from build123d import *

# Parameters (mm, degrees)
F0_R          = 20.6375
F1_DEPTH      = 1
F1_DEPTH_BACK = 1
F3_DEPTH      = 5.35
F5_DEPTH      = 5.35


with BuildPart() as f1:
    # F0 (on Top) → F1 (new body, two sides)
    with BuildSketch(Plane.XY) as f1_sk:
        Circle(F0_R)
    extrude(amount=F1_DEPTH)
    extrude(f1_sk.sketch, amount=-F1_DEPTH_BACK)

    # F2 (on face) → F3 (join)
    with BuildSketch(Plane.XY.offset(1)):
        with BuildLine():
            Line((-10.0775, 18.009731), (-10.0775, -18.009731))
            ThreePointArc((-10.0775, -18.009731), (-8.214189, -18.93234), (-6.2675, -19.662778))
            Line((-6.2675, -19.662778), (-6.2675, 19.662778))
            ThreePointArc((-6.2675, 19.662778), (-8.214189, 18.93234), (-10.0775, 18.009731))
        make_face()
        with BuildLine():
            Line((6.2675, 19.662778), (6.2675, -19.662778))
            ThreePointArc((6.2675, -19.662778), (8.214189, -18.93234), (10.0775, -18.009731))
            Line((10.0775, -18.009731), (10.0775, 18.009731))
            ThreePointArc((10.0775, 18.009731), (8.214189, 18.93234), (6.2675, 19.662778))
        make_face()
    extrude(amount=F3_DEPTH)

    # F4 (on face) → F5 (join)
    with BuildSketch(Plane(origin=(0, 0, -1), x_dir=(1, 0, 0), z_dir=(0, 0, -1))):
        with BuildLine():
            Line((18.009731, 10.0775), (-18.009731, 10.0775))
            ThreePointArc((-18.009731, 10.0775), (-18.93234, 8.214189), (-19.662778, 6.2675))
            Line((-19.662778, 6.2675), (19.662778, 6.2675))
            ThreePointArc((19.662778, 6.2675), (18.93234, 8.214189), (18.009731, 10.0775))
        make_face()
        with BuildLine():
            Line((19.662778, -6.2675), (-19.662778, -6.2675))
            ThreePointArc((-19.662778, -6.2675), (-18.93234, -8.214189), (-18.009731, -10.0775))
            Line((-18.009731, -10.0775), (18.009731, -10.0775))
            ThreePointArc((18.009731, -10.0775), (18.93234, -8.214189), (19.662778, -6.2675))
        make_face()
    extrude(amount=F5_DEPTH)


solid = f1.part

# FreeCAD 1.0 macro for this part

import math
import FreeCAD as App
import Part
import Sketcher

V = App.Vector
Q = App.Units.Quantity

doc = App.newDocument("Part")
body = doc.addObject("PartDesign::Body", "Body")

# Sketch on XY plane
sketch1 = body.newObject("Sketcher::SketchObject", "Sketch")
sketch1.AttachmentSupport = (doc.getObject("XY_Plane"), [""])
sketch1.MapMode = "FlatFace"
sketch1.addGeometry(Part.Circle(V(0, 0, 0), V(0, 0, 1), 20.6375), False)
sketch1.addConstraint([
    Sketcher.Constraint("Coincident", 0, 3, -1, 1),
    Sketcher.Constraint("Diameter", 0, Q("41.275 mm")),
])
pad1 = body.newObject("PartDesign::Pad", "Pad")
pad1.Profile = sketch1
pad1.Type = "TwoLengths"
pad1.Length = 1
pad1.Length2 = 1

# Sketch on XY plane
sketch2 = body.newObject("Sketcher::SketchObject", "Sketch001")
sketch2.AttachmentSupport = (doc.getObject("XY_Plane"), [""])
sketch2.MapMode = "FlatFace"
sketch2.AttachmentOffset = App.Placement(V(0, 0, 1), App.Rotation())
sketch2.addGeometry([
    Part.LineSegment(V(-10.0775, 18.009731, 0), V(-10.0775, -18.009731, 0)),  # 0
    Part.ArcOfCircle(Part.Circle(V(0.000011, 0.000032, 0), V(0, 0, 1), 20.637534), math.radians(-119.229554), math.radians(-107.679655)),  # 1
    Part.LineSegment(V(-6.2675, -19.662778, 0), V(-6.2675, 19.662778, 0)),  # 2
    Part.ArcOfCircle(Part.Circle(V(0.000011, -0.000032, 0), V(0, 0, 1), 20.637534), math.radians(107.679655), math.radians(119.229554)),  # 3
    Part.LineSegment(V(6.2675, 19.662778, 0), V(6.2675, -19.662778, 0)),  # 4
    Part.ArcOfCircle(Part.Circle(V(-0.000011, 0.000032, 0), V(0, 0, 1), 20.637534), math.radians(-72.320345), math.radians(-60.770446)),  # 5
    Part.LineSegment(V(10.0775, -18.009731, 0), V(10.0775, 18.009731, 0)),  # 6
    Part.ArcOfCircle(Part.Circle(V(-0.000011, -0.000032, 0), V(0, 0, 1), 20.637534), math.radians(60.770446), math.radians(72.320345)),  # 7
], False)
sketch2.addConstraint([
    Sketcher.Constraint("Coincident", 0, 2, 1, 1),
    Sketcher.Constraint("Coincident", 1, 2, 2, 1),
    Sketcher.Constraint("Coincident", 2, 2, 3, 1),
    Sketcher.Constraint("Coincident", 3, 2, 0, 1),
    Sketcher.Constraint("Coincident", 4, 2, 5, 1),
    Sketcher.Constraint("Coincident", 5, 2, 6, 1),
    Sketcher.Constraint("Coincident", 6, 2, 7, 1),
    Sketcher.Constraint("Coincident", 7, 2, 4, 1),
    Sketcher.Constraint("Vertical", 0),
    Sketcher.Constraint("Vertical", 2),
    Sketcher.Constraint("Vertical", 4),
    Sketcher.Constraint("Vertical", 6),
    Sketcher.Constraint("Equal", 1, 3),
    Sketcher.Constraint("Equal", 3, 5),
    Sketcher.Constraint("Equal", 5, 7),
    Sketcher.Constraint("Symmetric", 3, 3, 5, 3, -1, 1),
    Sketcher.Constraint("Symmetric", 1, 3, 7, 3, -1, 1),
    Sketcher.Constraint("Symmetric", 1, 3, 5, 3, -2),
    Sketcher.Constraint("Horizontal", 1, 2, 4, 2),
    Sketcher.Constraint("Horizontal", 0, 2, 5, 2),
    Sketcher.Constraint("DistanceX", 0, 2, 1, 2, Q("3.81 mm")),
    Sketcher.Constraint("Radius", 1, Q("20.637534 mm")),
    Sketcher.Constraint("DistanceX", 1, 2, 4, 2, Q("12.535 mm")),
    Sketcher.Constraint("DistanceY", 0, 2, 0, 1, Q("36.019462 mm")),
    Sketcher.Constraint("DistanceY", 0, 2, 7, 3, Q("18.009699 mm")),
])
pad2 = body.newObject("PartDesign::Pad", "Pad001")
pad2.Profile = sketch2
pad2.Length = 5.35

# Sketch on XY plane
sketch3 = body.newObject("Sketcher::SketchObject", "Sketch002")
sketch3.AttachmentSupport = (doc.getObject("XY_Plane"), [""])
sketch3.MapMode = "FlatFace"
sketch3.AttachmentOffset = App.Placement(V(0, 0, -1), App.Rotation())
sketch3.addGeometry([
    Part.LineSegment(V(18.009731, -10.0775, 0), V(-18.009731, -10.0775, 0)),  # 0
    Part.ArcOfCircle(Part.Circle(V(0.000032, 0.000011, 0), V(0, 0, 1), 20.637534), math.radians(-162.320345), math.radians(-150.770446)),  # 1
    Part.LineSegment(V(-19.662778, -6.2675, 0), V(19.662778, -6.2675, 0)),  # 2
    Part.ArcOfCircle(Part.Circle(V(-0.000032, 0.000011, 0), V(0, 0, 1), 20.637534), math.radians(-29.229554), math.radians(-17.679655)),  # 3
    Part.LineSegment(V(19.662778, 6.2675, 0), V(-19.662778, 6.2675, 0)),  # 4
    Part.ArcOfCircle(Part.Circle(V(0.000032, -0.000011, 0), V(0, 0, 1), 20.637534), math.radians(150.770446), math.radians(162.320345)),  # 5
    Part.LineSegment(V(-18.009731, 10.0775, 0), V(18.009731, 10.0775, 0)),  # 6
    Part.ArcOfCircle(Part.Circle(V(-0.000032, -0.000011, 0), V(0, 0, 1), 20.637534), math.radians(17.679655), math.radians(29.229554)),  # 7
], False)
sketch3.addConstraint([
    Sketcher.Constraint("Coincident", 0, 2, 1, 2),
    Sketcher.Constraint("Coincident", 1, 1, 2, 1),
    Sketcher.Constraint("Coincident", 2, 2, 3, 2),
    Sketcher.Constraint("Coincident", 3, 1, 0, 1),
    Sketcher.Constraint("Coincident", 4, 2, 5, 2),
    Sketcher.Constraint("Coincident", 5, 1, 6, 1),
    Sketcher.Constraint("Coincident", 6, 2, 7, 2),
    Sketcher.Constraint("Coincident", 7, 1, 4, 1),
    Sketcher.Constraint("Horizontal", 0),
    Sketcher.Constraint("Horizontal", 2),
    Sketcher.Constraint("Horizontal", 4),
    Sketcher.Constraint("Horizontal", 6),
    Sketcher.Constraint("Equal", 1, 3),
    Sketcher.Constraint("Equal", 3, 5),
    Sketcher.Constraint("Equal", 5, 7),
    Sketcher.Constraint("Symmetric", 3, 3, 5, 3, -1, 1),
    Sketcher.Constraint("Symmetric", 1, 3, 7, 3, -1, 1),
    Sketcher.Constraint("Symmetric", 1, 3, 3, 3, -2),
    Sketcher.Constraint("Vertical", 1, 1, 4, 2),
    Sketcher.Constraint("Vertical", 0, 2, 5, 1),
    Sketcher.Constraint("DistanceY", 0, 2, 1, 1, Q("3.81 mm")),
    Sketcher.Constraint("Radius", 1, Q("20.637534 mm")),
    Sketcher.Constraint("DistanceY", 1, 1, 4, 2, Q("12.535 mm")),
    Sketcher.Constraint("DistanceX", 0, 2, 0, 1, Q("36.019462 mm")),
    Sketcher.Constraint("DistanceX", 0, 2, 7, 3, Q("18.009699 mm")),
])
pad3 = body.newObject("PartDesign::Pad", "Pad002")
pad3.Profile = sketch3
pad3.Length = 5.35
pad3.Reversed = True

doc.recompute()
